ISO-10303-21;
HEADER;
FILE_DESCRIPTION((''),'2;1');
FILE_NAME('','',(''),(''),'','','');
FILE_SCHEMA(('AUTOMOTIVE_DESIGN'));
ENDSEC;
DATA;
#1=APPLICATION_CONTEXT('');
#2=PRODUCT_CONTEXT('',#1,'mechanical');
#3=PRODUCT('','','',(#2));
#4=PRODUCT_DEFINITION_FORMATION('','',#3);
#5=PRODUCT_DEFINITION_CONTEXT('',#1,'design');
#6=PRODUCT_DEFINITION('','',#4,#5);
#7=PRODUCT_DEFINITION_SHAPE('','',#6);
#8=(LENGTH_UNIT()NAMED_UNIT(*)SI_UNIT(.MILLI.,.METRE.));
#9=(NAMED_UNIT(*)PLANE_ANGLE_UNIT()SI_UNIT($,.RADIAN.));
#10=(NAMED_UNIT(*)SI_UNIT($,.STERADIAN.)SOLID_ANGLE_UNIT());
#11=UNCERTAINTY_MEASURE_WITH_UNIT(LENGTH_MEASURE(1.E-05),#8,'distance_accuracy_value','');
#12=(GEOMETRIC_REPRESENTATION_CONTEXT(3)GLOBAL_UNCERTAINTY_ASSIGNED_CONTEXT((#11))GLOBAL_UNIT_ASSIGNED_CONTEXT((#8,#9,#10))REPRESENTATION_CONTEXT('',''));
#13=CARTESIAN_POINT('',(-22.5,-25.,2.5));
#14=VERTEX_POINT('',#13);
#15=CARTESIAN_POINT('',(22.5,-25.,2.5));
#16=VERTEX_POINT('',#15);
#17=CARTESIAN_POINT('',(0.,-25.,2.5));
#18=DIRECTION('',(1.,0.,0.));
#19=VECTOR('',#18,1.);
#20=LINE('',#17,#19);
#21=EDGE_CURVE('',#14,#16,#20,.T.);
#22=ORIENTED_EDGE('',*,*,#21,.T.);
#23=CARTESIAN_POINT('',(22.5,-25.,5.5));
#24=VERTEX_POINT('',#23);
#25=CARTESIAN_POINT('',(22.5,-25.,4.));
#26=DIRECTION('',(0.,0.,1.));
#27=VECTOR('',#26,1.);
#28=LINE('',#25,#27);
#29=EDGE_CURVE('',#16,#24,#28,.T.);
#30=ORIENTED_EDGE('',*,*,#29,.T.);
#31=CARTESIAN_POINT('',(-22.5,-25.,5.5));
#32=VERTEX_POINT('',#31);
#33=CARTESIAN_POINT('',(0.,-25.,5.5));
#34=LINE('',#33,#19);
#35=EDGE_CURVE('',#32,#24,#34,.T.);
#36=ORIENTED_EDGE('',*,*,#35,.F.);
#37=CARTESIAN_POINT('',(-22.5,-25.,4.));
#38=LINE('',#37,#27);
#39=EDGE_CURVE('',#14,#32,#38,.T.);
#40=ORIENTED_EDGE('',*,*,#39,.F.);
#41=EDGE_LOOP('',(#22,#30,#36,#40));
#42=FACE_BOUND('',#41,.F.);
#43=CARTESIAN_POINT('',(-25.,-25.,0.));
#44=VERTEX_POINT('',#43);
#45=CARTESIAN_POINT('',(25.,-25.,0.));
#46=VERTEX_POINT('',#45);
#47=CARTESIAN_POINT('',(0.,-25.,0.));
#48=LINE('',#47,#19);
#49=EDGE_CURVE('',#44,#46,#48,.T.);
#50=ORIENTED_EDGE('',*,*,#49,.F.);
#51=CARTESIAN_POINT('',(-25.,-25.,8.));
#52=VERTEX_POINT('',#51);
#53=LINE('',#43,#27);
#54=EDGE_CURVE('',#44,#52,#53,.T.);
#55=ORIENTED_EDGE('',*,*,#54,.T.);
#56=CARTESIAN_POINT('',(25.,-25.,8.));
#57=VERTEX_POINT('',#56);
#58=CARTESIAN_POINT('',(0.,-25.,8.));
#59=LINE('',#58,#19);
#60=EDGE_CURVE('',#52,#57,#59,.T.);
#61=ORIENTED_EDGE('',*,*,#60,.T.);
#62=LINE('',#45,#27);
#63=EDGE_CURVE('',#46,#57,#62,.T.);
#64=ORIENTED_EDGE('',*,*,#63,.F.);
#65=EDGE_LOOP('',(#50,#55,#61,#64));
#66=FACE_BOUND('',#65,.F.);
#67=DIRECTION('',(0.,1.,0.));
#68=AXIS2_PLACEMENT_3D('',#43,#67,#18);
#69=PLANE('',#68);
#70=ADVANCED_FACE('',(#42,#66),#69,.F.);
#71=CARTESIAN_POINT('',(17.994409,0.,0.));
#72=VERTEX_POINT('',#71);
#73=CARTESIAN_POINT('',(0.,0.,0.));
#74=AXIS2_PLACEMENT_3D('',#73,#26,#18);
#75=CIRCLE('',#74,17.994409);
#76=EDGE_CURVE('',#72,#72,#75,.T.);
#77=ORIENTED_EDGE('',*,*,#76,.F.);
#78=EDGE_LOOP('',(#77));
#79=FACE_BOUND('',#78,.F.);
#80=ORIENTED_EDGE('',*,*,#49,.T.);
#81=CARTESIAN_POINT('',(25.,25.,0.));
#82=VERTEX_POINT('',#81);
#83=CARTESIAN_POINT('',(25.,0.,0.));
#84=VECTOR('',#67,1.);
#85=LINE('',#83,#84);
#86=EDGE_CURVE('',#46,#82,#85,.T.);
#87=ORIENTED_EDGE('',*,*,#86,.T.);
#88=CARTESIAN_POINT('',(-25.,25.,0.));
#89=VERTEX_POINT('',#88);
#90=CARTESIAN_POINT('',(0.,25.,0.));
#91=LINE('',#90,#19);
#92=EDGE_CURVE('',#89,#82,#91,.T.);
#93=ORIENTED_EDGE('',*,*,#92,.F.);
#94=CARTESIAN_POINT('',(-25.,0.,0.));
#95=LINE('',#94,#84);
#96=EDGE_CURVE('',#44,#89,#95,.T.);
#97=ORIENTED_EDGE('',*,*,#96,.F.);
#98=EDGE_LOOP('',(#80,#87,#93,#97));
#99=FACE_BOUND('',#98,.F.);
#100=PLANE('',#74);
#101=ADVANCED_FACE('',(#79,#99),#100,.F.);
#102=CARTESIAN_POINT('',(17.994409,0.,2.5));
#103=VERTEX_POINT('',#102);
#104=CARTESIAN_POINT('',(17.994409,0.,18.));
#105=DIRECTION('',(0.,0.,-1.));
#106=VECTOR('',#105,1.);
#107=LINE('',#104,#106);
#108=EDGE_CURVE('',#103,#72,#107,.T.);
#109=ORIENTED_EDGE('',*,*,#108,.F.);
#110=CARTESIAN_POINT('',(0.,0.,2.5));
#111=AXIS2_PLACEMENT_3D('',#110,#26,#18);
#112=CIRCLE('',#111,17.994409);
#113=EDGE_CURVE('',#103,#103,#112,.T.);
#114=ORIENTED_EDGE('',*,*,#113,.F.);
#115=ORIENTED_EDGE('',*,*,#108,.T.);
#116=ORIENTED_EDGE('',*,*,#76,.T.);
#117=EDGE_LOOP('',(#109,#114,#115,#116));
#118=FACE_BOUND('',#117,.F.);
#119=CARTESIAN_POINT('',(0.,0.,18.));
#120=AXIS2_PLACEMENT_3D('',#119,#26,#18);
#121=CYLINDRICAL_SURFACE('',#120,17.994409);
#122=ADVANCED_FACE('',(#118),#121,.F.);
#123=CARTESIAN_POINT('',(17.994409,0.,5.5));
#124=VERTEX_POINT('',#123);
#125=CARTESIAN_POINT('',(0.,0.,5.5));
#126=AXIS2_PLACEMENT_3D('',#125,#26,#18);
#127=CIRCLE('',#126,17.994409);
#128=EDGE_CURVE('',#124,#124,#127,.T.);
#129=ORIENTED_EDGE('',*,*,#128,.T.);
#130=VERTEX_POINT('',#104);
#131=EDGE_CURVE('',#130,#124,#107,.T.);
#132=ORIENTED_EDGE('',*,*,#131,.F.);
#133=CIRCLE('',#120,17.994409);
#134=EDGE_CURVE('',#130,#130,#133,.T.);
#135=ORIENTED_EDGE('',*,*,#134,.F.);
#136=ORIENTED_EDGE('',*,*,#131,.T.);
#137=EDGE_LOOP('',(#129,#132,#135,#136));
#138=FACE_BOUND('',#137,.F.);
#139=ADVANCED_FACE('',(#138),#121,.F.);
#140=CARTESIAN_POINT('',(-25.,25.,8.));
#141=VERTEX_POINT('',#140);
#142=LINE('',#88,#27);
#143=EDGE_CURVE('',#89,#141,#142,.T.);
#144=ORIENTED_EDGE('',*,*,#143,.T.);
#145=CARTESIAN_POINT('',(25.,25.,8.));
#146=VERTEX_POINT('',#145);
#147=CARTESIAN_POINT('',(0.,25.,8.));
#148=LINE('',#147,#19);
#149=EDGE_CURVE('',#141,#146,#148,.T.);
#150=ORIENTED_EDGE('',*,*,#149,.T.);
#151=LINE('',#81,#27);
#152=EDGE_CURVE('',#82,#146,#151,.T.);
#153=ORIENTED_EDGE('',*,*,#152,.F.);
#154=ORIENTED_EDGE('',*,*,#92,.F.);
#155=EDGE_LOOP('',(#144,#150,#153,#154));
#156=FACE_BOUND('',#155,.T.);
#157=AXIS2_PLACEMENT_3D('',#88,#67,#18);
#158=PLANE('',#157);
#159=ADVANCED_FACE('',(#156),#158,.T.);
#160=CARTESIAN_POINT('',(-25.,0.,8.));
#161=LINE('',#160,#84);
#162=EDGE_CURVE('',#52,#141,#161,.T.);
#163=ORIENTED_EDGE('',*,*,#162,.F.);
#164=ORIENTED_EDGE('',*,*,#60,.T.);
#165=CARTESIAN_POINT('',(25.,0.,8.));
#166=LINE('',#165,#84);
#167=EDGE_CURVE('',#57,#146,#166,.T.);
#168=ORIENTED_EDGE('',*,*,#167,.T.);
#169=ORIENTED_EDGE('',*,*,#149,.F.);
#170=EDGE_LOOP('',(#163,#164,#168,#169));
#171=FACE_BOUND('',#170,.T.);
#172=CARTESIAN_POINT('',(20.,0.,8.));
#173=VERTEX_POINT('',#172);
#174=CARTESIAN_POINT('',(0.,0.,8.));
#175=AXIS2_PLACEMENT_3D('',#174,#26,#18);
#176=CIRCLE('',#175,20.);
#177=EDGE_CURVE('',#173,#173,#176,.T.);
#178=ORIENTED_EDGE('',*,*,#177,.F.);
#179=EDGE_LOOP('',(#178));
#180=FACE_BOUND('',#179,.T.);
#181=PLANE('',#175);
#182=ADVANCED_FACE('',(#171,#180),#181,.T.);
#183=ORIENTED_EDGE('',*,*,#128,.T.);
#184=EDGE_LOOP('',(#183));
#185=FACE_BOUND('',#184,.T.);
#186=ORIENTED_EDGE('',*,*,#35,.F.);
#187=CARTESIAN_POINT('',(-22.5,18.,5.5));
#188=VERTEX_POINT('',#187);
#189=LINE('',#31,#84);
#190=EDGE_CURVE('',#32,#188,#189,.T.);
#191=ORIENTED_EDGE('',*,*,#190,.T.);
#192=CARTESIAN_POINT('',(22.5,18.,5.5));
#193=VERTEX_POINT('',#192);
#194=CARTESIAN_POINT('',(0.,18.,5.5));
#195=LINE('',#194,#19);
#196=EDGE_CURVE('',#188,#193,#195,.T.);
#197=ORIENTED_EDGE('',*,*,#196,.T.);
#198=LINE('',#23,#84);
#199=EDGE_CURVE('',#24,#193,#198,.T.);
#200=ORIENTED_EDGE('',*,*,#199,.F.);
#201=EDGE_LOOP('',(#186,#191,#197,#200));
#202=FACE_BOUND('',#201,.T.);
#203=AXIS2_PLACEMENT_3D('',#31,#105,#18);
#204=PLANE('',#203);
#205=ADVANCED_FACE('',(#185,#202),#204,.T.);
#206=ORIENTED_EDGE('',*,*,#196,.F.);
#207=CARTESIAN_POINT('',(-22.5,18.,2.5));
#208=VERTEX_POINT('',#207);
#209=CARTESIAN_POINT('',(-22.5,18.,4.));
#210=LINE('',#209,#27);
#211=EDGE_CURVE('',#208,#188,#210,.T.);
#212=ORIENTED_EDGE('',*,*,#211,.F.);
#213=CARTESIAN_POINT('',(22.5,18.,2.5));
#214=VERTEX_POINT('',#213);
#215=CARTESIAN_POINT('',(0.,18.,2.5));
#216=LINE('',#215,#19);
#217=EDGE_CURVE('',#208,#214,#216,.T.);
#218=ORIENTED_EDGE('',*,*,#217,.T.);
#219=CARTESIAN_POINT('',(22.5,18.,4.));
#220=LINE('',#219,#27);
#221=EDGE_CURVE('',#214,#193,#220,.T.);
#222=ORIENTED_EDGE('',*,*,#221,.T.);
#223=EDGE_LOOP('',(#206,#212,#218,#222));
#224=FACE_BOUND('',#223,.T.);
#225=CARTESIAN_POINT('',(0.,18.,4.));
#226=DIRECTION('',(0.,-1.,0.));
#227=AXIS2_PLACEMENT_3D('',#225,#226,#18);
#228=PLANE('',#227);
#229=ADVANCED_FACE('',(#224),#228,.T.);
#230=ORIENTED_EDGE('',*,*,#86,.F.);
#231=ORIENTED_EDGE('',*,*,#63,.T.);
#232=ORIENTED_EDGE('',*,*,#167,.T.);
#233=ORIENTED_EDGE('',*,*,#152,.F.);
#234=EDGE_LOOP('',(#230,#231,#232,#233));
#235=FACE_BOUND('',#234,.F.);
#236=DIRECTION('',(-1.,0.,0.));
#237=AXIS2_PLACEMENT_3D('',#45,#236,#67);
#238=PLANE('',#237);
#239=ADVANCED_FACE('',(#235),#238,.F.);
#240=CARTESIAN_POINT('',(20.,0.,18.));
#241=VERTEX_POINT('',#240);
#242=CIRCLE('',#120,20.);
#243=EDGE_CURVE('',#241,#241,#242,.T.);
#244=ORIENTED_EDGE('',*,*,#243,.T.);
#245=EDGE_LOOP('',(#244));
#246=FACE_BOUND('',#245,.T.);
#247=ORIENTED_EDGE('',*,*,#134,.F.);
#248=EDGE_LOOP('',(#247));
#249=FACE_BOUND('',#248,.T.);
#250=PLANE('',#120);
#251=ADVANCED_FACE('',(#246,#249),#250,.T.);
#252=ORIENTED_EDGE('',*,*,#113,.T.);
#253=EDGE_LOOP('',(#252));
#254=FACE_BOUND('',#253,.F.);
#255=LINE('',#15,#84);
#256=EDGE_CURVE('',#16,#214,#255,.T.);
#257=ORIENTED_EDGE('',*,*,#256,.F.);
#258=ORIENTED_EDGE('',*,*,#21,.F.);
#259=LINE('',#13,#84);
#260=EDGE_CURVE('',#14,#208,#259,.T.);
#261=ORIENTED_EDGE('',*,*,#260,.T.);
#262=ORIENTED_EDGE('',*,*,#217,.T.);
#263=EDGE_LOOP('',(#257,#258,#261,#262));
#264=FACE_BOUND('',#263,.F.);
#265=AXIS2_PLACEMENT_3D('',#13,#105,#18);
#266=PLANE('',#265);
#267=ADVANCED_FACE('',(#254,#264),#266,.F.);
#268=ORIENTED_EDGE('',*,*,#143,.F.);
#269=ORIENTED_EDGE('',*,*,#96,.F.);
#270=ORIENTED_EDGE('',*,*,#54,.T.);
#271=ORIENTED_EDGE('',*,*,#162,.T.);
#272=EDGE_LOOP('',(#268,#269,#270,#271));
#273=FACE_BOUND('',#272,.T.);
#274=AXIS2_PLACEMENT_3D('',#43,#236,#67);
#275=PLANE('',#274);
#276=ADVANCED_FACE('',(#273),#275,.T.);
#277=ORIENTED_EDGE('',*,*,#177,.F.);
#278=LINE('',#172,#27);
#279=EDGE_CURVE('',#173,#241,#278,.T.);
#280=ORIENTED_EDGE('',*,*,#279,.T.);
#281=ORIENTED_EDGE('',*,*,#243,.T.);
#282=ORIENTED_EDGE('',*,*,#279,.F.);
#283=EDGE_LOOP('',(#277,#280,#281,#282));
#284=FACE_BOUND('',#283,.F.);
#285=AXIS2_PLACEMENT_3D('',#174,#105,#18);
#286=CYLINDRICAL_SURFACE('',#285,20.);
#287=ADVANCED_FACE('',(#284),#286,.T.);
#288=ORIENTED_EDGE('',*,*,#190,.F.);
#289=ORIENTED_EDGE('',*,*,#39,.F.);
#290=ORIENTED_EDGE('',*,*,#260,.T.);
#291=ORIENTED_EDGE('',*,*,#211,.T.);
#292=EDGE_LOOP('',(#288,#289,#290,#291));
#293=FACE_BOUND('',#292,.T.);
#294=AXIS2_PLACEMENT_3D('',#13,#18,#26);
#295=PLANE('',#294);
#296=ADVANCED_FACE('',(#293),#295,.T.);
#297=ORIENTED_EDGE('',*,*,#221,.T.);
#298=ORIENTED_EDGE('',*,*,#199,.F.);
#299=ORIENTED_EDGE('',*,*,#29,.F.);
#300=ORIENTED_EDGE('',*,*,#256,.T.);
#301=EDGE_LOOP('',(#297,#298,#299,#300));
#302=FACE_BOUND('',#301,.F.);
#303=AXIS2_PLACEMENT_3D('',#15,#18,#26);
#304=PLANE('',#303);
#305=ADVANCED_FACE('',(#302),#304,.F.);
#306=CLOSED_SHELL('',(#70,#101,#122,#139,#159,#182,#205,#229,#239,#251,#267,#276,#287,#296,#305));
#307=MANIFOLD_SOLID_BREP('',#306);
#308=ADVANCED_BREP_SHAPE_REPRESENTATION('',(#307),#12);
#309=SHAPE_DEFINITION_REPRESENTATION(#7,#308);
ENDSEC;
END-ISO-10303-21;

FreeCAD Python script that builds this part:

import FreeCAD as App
import Part
import Sketcher
Q = App.Units.Quantity


def add_polygon(sketch, points):
    """Adds a closed chain of lines whose ends are joined by coincident constraints."""
    first, n = sketch.GeometryCount, len(points)
    for a, b in zip(points, points[1:] + points[:1]):
        sketch.addGeometry(Part.LineSegment(App.Vector(*a, 0), App.Vector(*b, 0)), False)
    for i in range(n):
        sketch.addConstraint(Sketcher.Constraint("Coincident", first + i, 2, first + (i + 1) % n, 1))

doc = App.newDocument("Part")
body = doc.addObject("PartDesign::Body", "Body")

# Sketch on XY plane
sketch1 = doc.addObject("Sketcher::SketchObject", "Sketch")
body.addObject(sketch1)
sketch1.AttachmentSupport = (doc.XY_Plane, [""])
sketch1.MapMode = "FlatFace"
add_polygon(sketch1, [(-25, 25), (-25, -25), (25, -25), (25, 25)])  # lines 0-3
sketch1.addConstraint(Sketcher.Constraint("Vertical", 0))
sketch1.addConstraint(Sketcher.Constraint("Horizontal", 1))
sketch1.addConstraint(Sketcher.Constraint("Vertical", 2))
sketch1.addConstraint(Sketcher.Constraint("Horizontal", 3))
sketch1.addConstraint(Sketcher.Constraint("Symmetric", 0, 2, 2, 2, -1, 1))
sketch1.addConstraint(Sketcher.Constraint("Equal", 3, 0))
sketch1.addConstraint(Sketcher.Constraint("DistanceX", 1, 1, 1, 2, Q("50 mm")))
pad1 = doc.addObject("PartDesign::Pad", "Pad")
body.addObject(pad1)
pad1.Profile = sketch1
pad1.Length = 8

# Sketch on XY plane
sketch2 = doc.addObject("Sketcher::SketchObject", "Sketch001")
body.addObject(sketch2)
sketch2.AttachmentSupport = (doc.XY_Plane, [""])
sketch2.MapMode = "FlatFace"
sketch2.AttachmentOffset = App.Placement(App.Vector(0, 0, 8), App.Rotation())
sketch2.addGeometry(Part.Circle(App.Vector(0, 0, 0), App.Vector(0, 0, 1), 20), False)
sketch2.addConstraint(Sketcher.Constraint("Coincident", 0, 3, -1, 1))
sketch2.addConstraint(Sketcher.Constraint("Diameter", 0, Q("40 mm")))
pad2 = doc.addObject("PartDesign::Pad", "Pad001")
body.addObject(pad2)
pad2.Profile = sketch2
pad2.Length = 10

# Sketch on XY plane
sketch3 = doc.addObject("Sketcher::SketchObject", "Sketch002")
body.addObject(sketch3)
sketch3.AttachmentSupport = (doc.XY_Plane, [""])
sketch3.MapMode = "FlatFace"
sketch3.AttachmentOffset = App.Placement(App.Vector(0, 0, 18), App.Rotation())
sketch3.addGeometry(Part.Circle(App.Vector(0, 0, 0), App.Vector(0, 0, 1), 17.994409), False)
sketch3.addConstraint(Sketcher.Constraint("Coincident", 0, 3, -1, 1))
sketch3.addConstraint(Sketcher.Constraint("Diameter", 0, Q("35.988818 mm")))
pocket1 = doc.addObject("PartDesign::Pocket", "Pocket")
body.addObject(pocket1)
pocket1.Profile = sketch3
pocket1.Type = "ThroughAll"

# Sketch on XZ plane
sketch4 = doc.addObject("Sketcher::SketchObject", "Sketch003")
body.addObject(sketch4)
sketch4.AttachmentSupport = (doc.XZ_Plane, [""])
sketch4.MapMode = "FlatFace"
sketch4.AttachmentOffset = App.Placement(App.Vector(0, 0, 25), App.Rotation())
add_polygon(sketch4, [(-22.5, 5.5), (-22.5, 2.5), (22.5, 2.5), (22.5, 5.5)])  # lines 0-3
sketch4.addConstraint(Sketcher.Constraint("Vertical", 0))
sketch4.addConstraint(Sketcher.Constraint("Horizontal", 1))
sketch4.addConstraint(Sketcher.Constraint("Vertical", 2))
sketch4.addConstraint(Sketcher.Constraint("Horizontal", 3))
sketch4.addConstraint(Sketcher.Constraint("DistanceX", 1, 1, 1, 2, Q("45 mm")))
sketch4.addConstraint(Sketcher.Constraint("DistanceY", 0, 2, 0, 1, Q("3 mm")))
sketch4.addConstraint(Sketcher.Constraint("DistanceX", 0, 2, -1, 1, Q("22.5 mm")))
sketch4.addConstraint(Sketcher.Constraint("DistanceY", -1, 1, 0, 2, Q("2.5 mm")))
pocket2 = doc.addObject("PartDesign::Pocket", "Pocket001")
body.addObject(pocket2)
pocket2.Profile = sketch4
pocket2.Length = 43

doc.recompute()
